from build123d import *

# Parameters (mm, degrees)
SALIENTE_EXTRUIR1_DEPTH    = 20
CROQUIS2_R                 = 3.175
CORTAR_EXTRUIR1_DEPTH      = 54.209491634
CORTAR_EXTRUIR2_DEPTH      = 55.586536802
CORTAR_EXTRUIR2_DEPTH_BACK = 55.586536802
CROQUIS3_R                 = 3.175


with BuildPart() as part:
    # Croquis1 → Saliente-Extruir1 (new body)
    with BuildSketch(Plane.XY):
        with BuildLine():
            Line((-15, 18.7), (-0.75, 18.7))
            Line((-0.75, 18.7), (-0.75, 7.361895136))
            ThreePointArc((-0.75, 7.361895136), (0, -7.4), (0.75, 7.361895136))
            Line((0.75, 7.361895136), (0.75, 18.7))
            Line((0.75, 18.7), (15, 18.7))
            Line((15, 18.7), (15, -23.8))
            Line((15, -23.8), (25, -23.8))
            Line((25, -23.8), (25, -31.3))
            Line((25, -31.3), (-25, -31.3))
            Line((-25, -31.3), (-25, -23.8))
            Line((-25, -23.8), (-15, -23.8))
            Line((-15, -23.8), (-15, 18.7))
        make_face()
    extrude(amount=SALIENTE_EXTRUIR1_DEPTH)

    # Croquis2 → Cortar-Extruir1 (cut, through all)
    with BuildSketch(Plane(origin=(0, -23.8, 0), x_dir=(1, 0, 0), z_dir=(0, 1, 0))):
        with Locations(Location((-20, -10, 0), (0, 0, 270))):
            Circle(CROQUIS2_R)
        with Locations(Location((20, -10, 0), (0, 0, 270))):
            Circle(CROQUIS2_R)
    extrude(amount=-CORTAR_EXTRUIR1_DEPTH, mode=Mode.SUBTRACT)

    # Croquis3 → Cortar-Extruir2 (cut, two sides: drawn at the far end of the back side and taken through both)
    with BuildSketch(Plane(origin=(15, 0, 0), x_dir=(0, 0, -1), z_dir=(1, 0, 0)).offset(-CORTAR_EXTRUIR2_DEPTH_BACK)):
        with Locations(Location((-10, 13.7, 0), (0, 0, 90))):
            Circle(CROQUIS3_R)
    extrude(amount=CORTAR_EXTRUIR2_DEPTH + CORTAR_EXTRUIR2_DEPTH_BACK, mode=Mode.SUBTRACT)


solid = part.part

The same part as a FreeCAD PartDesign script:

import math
import FreeCAD as App
import Part
import Sketcher
Q = App.Units.Quantity

doc = App.newDocument("Part")
body = doc.addObject("PartDesign::Body", "Body")

# Sketch on XY plane
sketch1 = doc.addObject("Sketcher::SketchObject", "Sketch")
body.addObject(sketch1)
sketch1.AttachmentSupport = (doc.XY_Plane, [""])
sketch1.MapMode = "FlatFace"
sketch1.addGeometry(Part.LineSegment(App.Vector(-0.75, 18.7, 0), App.Vector(-15, 18.7, 0)), False)
sketch1.addGeometry(Part.LineSegment(App.Vector(-15, 18.7, 0), App.Vector(-15, -23.8, 0)), False)
sketch1.addGeometry(Part.LineSegment(App.Vector(-15, -23.8, 0), App.Vector(-25, -23.8, 0)), False)
sketch1.addGeometry(Part.LineSegment(App.Vector(-25, -23.8, 0), App.Vector(-25, -31.3, 0)), False)
sketch1.addGeometry(Part.LineSegment(App.Vector(-25, -31.3, 0), App.Vector(25, -31.3, 0)), False)
sketch1.addGeometry(Part.LineSegment(App.Vector(25, -31.3, 0), App.Vector(25, -23.8, 0)), False)
sketch1.addGeometry(Part.LineSegment(App.Vector(25, -23.8, 0), App.Vector(15, -23.8, 0)), False)
sketch1.addGeometry(Part.LineSegment(App.Vector(15, -23.8, 0), App.Vector(15, 18.7, 0)), False)
sketch1.addGeometry(Part.LineSegment(App.Vector(15, 18.7, 0), App.Vector(0.75, 18.7, 0)), False)
sketch1.addGeometry(Part.LineSegment(App.Vector(0.75, 18.7, 0), App.Vector(0.75, 7.361895, 0)), False)
sketch1.addGeometry(Part.ArcOfCircle(Part.Circle(App.Vector(0, 0, 0), App.Vector(0, 0, 1), 7.4), math.radians(95.816993), math.radians(444.183007)), False)
sketch1.addGeometry(Part.LineSegment(App.Vector(-0.75, 7.361895, 0), App.Vector(-0.75, 18.7, 0)), False)
sketch1.addConstraint(Sketcher.Constraint("Coincident", 0, 2, 1, 1))
sketch1.addConstraint(Sketcher.Constraint("Coincident", 1, 2, 2, 1))
sketch1.addConstraint(Sketcher.Constraint("Coincident", 2, 2, 3, 1))
sketch1.addConstraint(Sketcher.Constraint("Coincident", 3, 2, 4, 1))
sketch1.addConstraint(Sketcher.Constraint("Coincident", 4, 2, 5, 1))
sketch1.addConstraint(Sketcher.Constraint("Coincident", 5, 2, 6, 1))
sketch1.addConstraint(Sketcher.Constraint("Coincident", 6, 2, 7, 1))
sketch1.addConstraint(Sketcher.Constraint("Coincident", 7, 2, 8, 1))
sketch1.addConstraint(Sketcher.Constraint("Coincident", 8, 2, 9, 1))
sketch1.addConstraint(Sketcher.Constraint("Coincident", 9, 2, 10, 2))
sketch1.addConstraint(Sketcher.Constraint("Coincident", 10, 1, 11, 1))
sketch1.addConstraint(Sketcher.Constraint("Coincident", 11, 2, 0, 1))
sketch1.addConstraint(Sketcher.Constraint("Horizontal", 0))
sketch1.addConstraint(Sketcher.Constraint("Vertical", 1))
sketch1.addConstraint(Sketcher.Constraint("Horizontal", 2))
sketch1.addConstraint(Sketcher.Constraint("Vertical", 3))
sketch1.addConstraint(Sketcher.Constraint("Horizontal", 4))
sketch1.addConstraint(Sketcher.Constraint("Vertical", 5))
sketch1.addConstraint(Sketcher.Constraint("Horizontal", 6))
sketch1.addConstraint(Sketcher.Constraint("Vertical", 7))
sketch1.addConstraint(Sketcher.Constraint("Horizontal", 8))
sketch1.addConstraint(Sketcher.Constraint("Vertical", 9))
sketch1.addConstraint(Sketcher.Constraint("Vertical", 11))
sketch1.addConstraint(Sketcher.Constraint("Coincident", 10, 3, -1, 1))
sketch1.addConstraint(Sketcher.Constraint("Symmetric", 2, 2, 5, 2, -2))
sketch1.addConstraint(Sketcher.Constraint("Symmetric", 0, 2, 7, 2, -2))
sketch1.addConstraint(Sketcher.Constraint("Horizontal", 9, 2, 10, 1))
sketch1.addConstraint(Sketcher.Constraint("Radius", 10, Q("7.4 mm")))
sketch1.addConstraint(Sketcher.Constraint("DistanceX", 2, 2, 2, 1, Q("10 mm")))
sketch1.addConstraint(Sketcher.Constraint("DistanceX", 4, 1, 4, 2, Q("50 mm")))
sketch1.addConstraint(Sketcher.Constraint("DistanceY", 1, 2, 1, 1, Q("42.5 mm")))
sketch1.addConstraint(Sketcher.Constraint("DistanceY", 3, 2, 3, 1, Q("7.5 mm")))
sketch1.addConstraint(Sketcher.Constraint("DistanceX", 0, 2, 0, 1, Q("14.25 mm")))
sketch1.addConstraint(Sketcher.Constraint("DistanceY", -1, 1, 0, 2, Q("18.7 mm")))
pad1 = doc.addObject("PartDesign::Pad", "Pad")
body.addObject(pad1)
pad1.Profile = sketch1
pad1.Length = 20

# Sketch on XZ plane
sketch2 = doc.addObject("Sketcher::SketchObject", "Sketch001")
body.addObject(sketch2)
sketch2.AttachmentSupport = (doc.XZ_Plane, [""])
sketch2.MapMode = "FlatFace"
sketch2.AttachmentOffset = App.Placement(App.Vector(0, 0, 23.8), App.Rotation())
sketch2.addGeometry(Part.Circle(App.Vector(-20, 10, 0), App.Vector(0, 0, 1), 3.175), False)
sketch2.addGeometry(Part.Circle(App.Vector(20, 10, 0), App.Vector(0, 0, 1), 3.175), False)
sketch2.addConstraint(Sketcher.Constraint("Equal", 0, 1))
sketch2.addConstraint(Sketcher.Constraint("Symmetric", 0, 3, 1, 3, -2))
sketch2.addConstraint(Sketcher.Constraint("Diameter", 0, Q("6.35 mm")))
sketch2.addConstraint(Sketcher.Constraint("DistanceX", 0, 3, -1, 1, Q("20 mm")))
sketch2.addConstraint(Sketcher.Constraint("DistanceY", -1, 1, 0, 3, Q("10 mm")))
pocket1 = doc.addObject("PartDesign::Pocket", "Pocket")
body.addObject(pocket1)
pocket1.Profile = sketch2
pocket1.Type = "ThroughAll"
pocket1.Reversed = True

# Sketch on YZ plane
sketch3 = doc.addObject("Sketcher::SketchObject", "Sketch002")
body.addObject(sketch3)
sketch3.AttachmentSupport = (doc.YZ_Plane, [""])
sketch3.MapMode = "FlatFace"
sketch3.AttachmentOffset = App.Placement(App.Vector(0, 0, 15), App.Rotation())
sketch3.addGeometry(Part.Circle(App.Vector(13.7, 10, 0), App.Vector(0, 0, 1), 3.175), False)
sketch3.addConstraint(Sketcher.Constraint("Diameter", 0, Q("6.35 mm")))
sketch3.addConstraint(Sketcher.Constraint("DistanceY", -1, 1, 0, 3, Q("10 mm")))
sketch3.addConstraint(Sketcher.Constraint("DistanceX", -1, 1, 0, 3, Q("13.7 mm")))
pocket2 = doc.addObject("PartDesign::Pocket", "Pocket001")
body.addObject(pocket2)
pocket2.Profile = sketch3
pocket2.Type = "ThroughAll"
pocket2.Midplane = True

doc.recompute()
